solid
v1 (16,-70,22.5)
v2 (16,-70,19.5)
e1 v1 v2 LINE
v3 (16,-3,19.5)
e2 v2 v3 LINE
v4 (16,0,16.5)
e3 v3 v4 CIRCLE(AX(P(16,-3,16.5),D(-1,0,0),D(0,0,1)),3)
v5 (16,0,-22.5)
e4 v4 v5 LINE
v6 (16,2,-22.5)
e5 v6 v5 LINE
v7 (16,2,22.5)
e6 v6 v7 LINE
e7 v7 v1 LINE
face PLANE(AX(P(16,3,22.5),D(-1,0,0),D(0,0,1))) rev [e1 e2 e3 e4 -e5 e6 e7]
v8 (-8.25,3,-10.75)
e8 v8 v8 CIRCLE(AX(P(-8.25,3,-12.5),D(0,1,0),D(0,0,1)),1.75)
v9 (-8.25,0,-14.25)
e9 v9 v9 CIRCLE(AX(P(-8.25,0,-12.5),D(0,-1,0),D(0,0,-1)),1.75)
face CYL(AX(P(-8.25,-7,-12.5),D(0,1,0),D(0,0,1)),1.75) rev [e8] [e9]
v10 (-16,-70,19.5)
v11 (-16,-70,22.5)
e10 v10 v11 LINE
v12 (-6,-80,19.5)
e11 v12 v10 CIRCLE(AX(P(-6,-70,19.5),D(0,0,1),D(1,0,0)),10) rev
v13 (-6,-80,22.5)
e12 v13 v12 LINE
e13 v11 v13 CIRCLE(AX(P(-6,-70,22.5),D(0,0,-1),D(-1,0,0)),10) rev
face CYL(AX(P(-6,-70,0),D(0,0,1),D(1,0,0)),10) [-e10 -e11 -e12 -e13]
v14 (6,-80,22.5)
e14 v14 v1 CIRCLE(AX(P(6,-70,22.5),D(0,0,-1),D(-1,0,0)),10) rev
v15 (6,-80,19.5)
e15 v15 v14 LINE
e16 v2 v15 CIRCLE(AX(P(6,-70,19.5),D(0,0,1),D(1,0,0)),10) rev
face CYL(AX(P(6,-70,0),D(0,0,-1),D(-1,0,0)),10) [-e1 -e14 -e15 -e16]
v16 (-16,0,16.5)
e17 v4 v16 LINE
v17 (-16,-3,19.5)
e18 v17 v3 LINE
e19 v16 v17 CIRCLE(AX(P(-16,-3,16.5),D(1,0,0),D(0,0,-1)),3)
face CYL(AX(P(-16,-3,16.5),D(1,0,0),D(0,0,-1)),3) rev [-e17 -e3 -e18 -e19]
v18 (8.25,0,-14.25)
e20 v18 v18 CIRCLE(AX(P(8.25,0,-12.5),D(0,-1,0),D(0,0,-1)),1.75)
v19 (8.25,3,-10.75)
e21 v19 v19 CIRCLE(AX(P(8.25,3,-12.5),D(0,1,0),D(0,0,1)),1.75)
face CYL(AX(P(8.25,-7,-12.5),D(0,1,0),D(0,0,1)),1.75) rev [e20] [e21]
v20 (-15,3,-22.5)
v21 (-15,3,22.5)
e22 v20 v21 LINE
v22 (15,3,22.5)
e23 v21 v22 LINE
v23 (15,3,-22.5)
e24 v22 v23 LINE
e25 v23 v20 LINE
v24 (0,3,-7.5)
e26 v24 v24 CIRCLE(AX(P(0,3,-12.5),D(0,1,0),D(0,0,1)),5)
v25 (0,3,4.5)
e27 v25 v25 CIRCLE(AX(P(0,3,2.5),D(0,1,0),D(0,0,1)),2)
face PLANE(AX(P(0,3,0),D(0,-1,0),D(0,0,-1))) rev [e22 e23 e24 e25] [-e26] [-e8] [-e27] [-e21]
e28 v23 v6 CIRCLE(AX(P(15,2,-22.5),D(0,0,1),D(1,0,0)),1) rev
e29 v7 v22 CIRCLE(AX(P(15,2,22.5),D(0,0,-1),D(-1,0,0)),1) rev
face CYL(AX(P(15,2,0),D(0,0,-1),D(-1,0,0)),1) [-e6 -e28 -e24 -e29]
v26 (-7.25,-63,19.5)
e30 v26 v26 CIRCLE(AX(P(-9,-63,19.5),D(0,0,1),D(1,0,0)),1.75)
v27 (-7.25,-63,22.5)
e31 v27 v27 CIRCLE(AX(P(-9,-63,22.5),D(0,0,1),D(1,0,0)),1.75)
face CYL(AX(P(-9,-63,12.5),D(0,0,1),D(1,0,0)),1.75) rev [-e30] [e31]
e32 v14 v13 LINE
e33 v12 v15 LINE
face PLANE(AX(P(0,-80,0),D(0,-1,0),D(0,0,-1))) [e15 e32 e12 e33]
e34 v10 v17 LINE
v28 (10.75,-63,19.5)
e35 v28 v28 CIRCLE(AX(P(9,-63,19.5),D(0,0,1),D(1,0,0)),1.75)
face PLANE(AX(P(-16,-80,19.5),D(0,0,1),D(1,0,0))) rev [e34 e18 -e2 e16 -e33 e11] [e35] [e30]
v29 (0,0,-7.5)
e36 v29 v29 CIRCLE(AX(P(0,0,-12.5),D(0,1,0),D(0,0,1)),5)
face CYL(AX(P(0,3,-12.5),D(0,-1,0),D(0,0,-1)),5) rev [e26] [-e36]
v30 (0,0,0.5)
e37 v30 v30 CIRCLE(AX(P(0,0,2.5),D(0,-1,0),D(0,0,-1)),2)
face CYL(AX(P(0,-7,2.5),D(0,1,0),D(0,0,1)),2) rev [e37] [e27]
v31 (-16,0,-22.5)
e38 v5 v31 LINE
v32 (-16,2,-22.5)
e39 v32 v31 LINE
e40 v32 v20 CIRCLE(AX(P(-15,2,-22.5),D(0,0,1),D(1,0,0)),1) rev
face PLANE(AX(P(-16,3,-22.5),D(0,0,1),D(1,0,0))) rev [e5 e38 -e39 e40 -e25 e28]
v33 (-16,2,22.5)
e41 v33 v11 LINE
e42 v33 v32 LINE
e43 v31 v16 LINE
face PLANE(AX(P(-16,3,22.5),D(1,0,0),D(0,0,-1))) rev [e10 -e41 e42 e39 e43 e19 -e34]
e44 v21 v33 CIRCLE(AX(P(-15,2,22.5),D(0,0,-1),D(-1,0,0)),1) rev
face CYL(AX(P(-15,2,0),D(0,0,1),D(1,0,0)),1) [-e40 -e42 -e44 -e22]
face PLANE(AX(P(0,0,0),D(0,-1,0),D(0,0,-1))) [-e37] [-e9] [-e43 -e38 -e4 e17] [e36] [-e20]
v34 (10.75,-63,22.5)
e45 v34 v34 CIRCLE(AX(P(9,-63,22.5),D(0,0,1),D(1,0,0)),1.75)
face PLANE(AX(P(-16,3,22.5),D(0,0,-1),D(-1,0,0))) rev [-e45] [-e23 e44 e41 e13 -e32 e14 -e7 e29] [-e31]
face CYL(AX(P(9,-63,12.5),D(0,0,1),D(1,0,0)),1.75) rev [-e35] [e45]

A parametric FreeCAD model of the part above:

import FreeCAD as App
import Part
import Sketcher

V = App.Vector


def edges_at(feature, points):
    """Names of the edges that pass closest to the given points."""
    edges = feature.Shape.Edges
    near = lambda p: min(range(len(edges)), key=lambda i: edges[i].distToShape(Part.Vertex(*p))[0])
    return sorted({f"Edge{near(p) + 1}" for p in points})

doc = App.newDocument("Part")
body = doc.addObject("PartDesign::Body", "Body")

sketch1 = body.newObject("Sketcher::SketchObject", "Sketch")
sketch1.AttachmentSupport = (doc.getObject("XZ_Plane"), [""])
sketch1.MapMode = "FlatFace"
sketch1.addGeometry([
    Part.LineSegment(V(-16, -22, 0), V(-16, 22, 0)),
    Part.LineSegment(V(-16, 22, 0), V(16, 22, 0)),
    Part.LineSegment(V(16, 22, 0), V(16, -22, 0)),
    Part.LineSegment(V(16, -22, 0), V(-16, -22, 0)),
    Part.Circle(V(0, -12, 0), V(0, 0, 1), 5),
], False)
sketch1.addConstraint([
    Sketcher.Constraint("Coincident", 0, 2, 1, 1),
    Sketcher.Constraint("Coincident", 1, 2, 2, 1),
    Sketcher.Constraint("Coincident", 2, 2, 3, 1),
    Sketcher.Constraint("Coincident", 3, 2, 0, 1),
    Sketcher.Constraint("Vertical", 0),
    Sketcher.Constraint("Horizontal", 1),
    Sketcher.Constraint("Vertical", 2),
    Sketcher.Constraint("Horizontal", 3),
    Sketcher.Constraint("Symmetric", 0, 2, 2, 2, -1, 1),
    Sketcher.Constraint("PointOnObject", 4, 3, -2),
    Sketcher.Constraint("Diameter", 4, 10.0),
    Sketcher.Constraint("DistanceX", 1, 1, 1, 2, 32.0),
    Sketcher.Constraint("DistanceY", 0, 1, 0, 2, 45.0),
    Sketcher.Constraint("DistanceY", 4, 3, 0, 2, 35.0),
])
pad1 = body.newObject("PartDesign::Pad", "Pad")
pad1.Profile = sketch1
pad1.Length = 3
pad1.Reversed = True

sketch2 = body.newObject("Sketcher::SketchObject", "Sketch001")
sketch2.AttachmentSupport = (doc.getObject("XZ_Plane"), [""])
sketch2.MapMode = "FlatFace"
sketch2.addGeometry([
    Part.LineSegment(V(-16, 22.5, 0), V(-16, 19.5, 0)),
    Part.LineSegment(V(-16, 19.5, 0), V(16, 19.5, 0)),
    Part.LineSegment(V(16, 19.5, 0), V(16, 22.5, 0)),
    Part.LineSegment(V(16, 22.5, 0), V(-16, 22.5, 0)),
], False)
sketch2.addConstraint([
    Sketcher.Constraint("Coincident", 0, 2, 1, 1),
    Sketcher.Constraint("Coincident", 1, 2, 2, 1),
    Sketcher.Constraint("Coincident", 2, 2, 3, 1),
    Sketcher.Constraint("Coincident", 3, 2, 0, 1),
    Sketcher.Constraint("Vertical", 0),
    Sketcher.Constraint("Horizontal", 1),
    Sketcher.Constraint("Vertical", 2),
    Sketcher.Constraint("Horizontal", 3),
    Sketcher.Constraint("DistanceX", 1, 1, 1, 2, 32.0),
    Sketcher.Constraint("DistanceY", 0, 2, 0, 1, 3.0),
    Sketcher.Constraint("DistanceX", 0, 2, -1, 1, 16.0),
    Sketcher.Constraint("DistanceY", -1, 1, 0, 2, 19.5),
])
pad2 = body.newObject("PartDesign::Pad", "Pad001")
pad2.Profile = sketch2
pad2.Length = 80
doc.recompute()

fillet = body.newObject("PartDesign::Fillet", "Fillet")
fillet.Base = (pad2, edges_at(pad2, [(0, 0, 19.5)]))
fillet.Radius = 3
doc.recompute()

fillet2 = body.newObject("PartDesign::Fillet", "Fillet001")
fillet2.Base = (fillet, edges_at(fillet, [(-16, 3, 0), (16, 3, 0)]))
fillet2.Radius = 1

sketch3 = body.newObject("Sketcher::SketchObject", "Sketch002")
sketch3.AttachmentSupport = (doc.getObject("XZ_Plane"), [""])
sketch3.MapMode = "FlatFace"
sketch3.AttachmentOffset = App.Placement(V(0, 0, -3), App.Rotation())
sketch3.addGeometry([
    Part.Circle(V(-8.2, -12.5, 0), V(0, 0, 1), 1.8),
    Part.Circle(V(8.2, -12.5, 0), V(0, 0, 1), 1.8),
], False)
sketch3.addConstraint([
    Sketcher.Constraint("Equal", 0, 1),
    Sketcher.Constraint("Symmetric", 0, 3, 1, 3, -2),
    Sketcher.Constraint("Diameter", 0, 3.5),
    Sketcher.Constraint("DistanceY", 0, 3, -1, 1, 12.5),
    Sketcher.Constraint("DistanceX", 0, 3, 1, 3, 16.5),
])
pocket1 = body.newObject("PartDesign::Pocket", "Pocket")
pocket1.Profile = sketch3
pocket1.Length = 10
pocket1.Reversed = True

sketch4 = body.newObject("Sketcher::SketchObject", "Sketch003")
sketch4.AttachmentSupport = (doc.getObject("XY_Plane"), [""])
sketch4.MapMode = "FlatFace"
sketch4.AttachmentOffset = App.Placement(V(0, 0, 22.5), App.Rotation())
sketch4.addGeometry([
    Part.Circle(V(-9, -63, 0), V(0, 0, 1), 1.8),
    Part.Circle(V(9, -63, 0), V(0, 0, 1), 1.8),
], False)
sketch4.addConstraint([
    Sketcher.Constraint("Equal", 0, 1),
    Sketcher.Constraint("Symmetric", 0, 3, 1, 3, -2),
    Sketcher.Constraint("Diameter", 0, 3.5),
    Sketcher.Constraint("DistanceX", 0, 3, -1, 1, 9.0),
    Sketcher.Constraint("DistanceY", 0, 3, -1, 1, 63.0),
])
pocket2 = body.newObject("PartDesign::Pocket", "Pocket001")
pocket2.Profile = sketch4
pocket2.Length = 10
doc.recompute()

fillet3 = body.newObject("PartDesign::Fillet", "Fillet002")
fillet3.Base = (pocket2, edges_at(pocket2, [(-16, -80, 21), (16, -80, 21)]))
fillet3.Radius = 10

sketch5 = body.newObject("Sketcher::SketchObject", "Sketch004")
sketch5.AttachmentSupport = (doc.getObject("XZ_Plane"), [""])
sketch5.MapMode = "FlatFace"
sketch5.AttachmentOffset = App.Placement(V(0, 0, -3), App.Rotation())
sketch5.addGeometry(Part.Circle(V(0, 2.5, 0), V(0, 0, 1), 2), False)
sketch5.addConstraint([
    Sketcher.Constraint("PointOnObject", 0, 3, -2),
    Sketcher.Constraint("Diameter", 0, 4.0),
    Sketcher.Constraint("DistanceY", -1, 1, 0, 3, 2.5),
])
pocket3 = body.newObject("PartDesign::Pocket", "Pocket002")
pocket3.Profile = sketch5
pocket3.Length = 10
pocket3.Reversed = True

doc.recompute()
